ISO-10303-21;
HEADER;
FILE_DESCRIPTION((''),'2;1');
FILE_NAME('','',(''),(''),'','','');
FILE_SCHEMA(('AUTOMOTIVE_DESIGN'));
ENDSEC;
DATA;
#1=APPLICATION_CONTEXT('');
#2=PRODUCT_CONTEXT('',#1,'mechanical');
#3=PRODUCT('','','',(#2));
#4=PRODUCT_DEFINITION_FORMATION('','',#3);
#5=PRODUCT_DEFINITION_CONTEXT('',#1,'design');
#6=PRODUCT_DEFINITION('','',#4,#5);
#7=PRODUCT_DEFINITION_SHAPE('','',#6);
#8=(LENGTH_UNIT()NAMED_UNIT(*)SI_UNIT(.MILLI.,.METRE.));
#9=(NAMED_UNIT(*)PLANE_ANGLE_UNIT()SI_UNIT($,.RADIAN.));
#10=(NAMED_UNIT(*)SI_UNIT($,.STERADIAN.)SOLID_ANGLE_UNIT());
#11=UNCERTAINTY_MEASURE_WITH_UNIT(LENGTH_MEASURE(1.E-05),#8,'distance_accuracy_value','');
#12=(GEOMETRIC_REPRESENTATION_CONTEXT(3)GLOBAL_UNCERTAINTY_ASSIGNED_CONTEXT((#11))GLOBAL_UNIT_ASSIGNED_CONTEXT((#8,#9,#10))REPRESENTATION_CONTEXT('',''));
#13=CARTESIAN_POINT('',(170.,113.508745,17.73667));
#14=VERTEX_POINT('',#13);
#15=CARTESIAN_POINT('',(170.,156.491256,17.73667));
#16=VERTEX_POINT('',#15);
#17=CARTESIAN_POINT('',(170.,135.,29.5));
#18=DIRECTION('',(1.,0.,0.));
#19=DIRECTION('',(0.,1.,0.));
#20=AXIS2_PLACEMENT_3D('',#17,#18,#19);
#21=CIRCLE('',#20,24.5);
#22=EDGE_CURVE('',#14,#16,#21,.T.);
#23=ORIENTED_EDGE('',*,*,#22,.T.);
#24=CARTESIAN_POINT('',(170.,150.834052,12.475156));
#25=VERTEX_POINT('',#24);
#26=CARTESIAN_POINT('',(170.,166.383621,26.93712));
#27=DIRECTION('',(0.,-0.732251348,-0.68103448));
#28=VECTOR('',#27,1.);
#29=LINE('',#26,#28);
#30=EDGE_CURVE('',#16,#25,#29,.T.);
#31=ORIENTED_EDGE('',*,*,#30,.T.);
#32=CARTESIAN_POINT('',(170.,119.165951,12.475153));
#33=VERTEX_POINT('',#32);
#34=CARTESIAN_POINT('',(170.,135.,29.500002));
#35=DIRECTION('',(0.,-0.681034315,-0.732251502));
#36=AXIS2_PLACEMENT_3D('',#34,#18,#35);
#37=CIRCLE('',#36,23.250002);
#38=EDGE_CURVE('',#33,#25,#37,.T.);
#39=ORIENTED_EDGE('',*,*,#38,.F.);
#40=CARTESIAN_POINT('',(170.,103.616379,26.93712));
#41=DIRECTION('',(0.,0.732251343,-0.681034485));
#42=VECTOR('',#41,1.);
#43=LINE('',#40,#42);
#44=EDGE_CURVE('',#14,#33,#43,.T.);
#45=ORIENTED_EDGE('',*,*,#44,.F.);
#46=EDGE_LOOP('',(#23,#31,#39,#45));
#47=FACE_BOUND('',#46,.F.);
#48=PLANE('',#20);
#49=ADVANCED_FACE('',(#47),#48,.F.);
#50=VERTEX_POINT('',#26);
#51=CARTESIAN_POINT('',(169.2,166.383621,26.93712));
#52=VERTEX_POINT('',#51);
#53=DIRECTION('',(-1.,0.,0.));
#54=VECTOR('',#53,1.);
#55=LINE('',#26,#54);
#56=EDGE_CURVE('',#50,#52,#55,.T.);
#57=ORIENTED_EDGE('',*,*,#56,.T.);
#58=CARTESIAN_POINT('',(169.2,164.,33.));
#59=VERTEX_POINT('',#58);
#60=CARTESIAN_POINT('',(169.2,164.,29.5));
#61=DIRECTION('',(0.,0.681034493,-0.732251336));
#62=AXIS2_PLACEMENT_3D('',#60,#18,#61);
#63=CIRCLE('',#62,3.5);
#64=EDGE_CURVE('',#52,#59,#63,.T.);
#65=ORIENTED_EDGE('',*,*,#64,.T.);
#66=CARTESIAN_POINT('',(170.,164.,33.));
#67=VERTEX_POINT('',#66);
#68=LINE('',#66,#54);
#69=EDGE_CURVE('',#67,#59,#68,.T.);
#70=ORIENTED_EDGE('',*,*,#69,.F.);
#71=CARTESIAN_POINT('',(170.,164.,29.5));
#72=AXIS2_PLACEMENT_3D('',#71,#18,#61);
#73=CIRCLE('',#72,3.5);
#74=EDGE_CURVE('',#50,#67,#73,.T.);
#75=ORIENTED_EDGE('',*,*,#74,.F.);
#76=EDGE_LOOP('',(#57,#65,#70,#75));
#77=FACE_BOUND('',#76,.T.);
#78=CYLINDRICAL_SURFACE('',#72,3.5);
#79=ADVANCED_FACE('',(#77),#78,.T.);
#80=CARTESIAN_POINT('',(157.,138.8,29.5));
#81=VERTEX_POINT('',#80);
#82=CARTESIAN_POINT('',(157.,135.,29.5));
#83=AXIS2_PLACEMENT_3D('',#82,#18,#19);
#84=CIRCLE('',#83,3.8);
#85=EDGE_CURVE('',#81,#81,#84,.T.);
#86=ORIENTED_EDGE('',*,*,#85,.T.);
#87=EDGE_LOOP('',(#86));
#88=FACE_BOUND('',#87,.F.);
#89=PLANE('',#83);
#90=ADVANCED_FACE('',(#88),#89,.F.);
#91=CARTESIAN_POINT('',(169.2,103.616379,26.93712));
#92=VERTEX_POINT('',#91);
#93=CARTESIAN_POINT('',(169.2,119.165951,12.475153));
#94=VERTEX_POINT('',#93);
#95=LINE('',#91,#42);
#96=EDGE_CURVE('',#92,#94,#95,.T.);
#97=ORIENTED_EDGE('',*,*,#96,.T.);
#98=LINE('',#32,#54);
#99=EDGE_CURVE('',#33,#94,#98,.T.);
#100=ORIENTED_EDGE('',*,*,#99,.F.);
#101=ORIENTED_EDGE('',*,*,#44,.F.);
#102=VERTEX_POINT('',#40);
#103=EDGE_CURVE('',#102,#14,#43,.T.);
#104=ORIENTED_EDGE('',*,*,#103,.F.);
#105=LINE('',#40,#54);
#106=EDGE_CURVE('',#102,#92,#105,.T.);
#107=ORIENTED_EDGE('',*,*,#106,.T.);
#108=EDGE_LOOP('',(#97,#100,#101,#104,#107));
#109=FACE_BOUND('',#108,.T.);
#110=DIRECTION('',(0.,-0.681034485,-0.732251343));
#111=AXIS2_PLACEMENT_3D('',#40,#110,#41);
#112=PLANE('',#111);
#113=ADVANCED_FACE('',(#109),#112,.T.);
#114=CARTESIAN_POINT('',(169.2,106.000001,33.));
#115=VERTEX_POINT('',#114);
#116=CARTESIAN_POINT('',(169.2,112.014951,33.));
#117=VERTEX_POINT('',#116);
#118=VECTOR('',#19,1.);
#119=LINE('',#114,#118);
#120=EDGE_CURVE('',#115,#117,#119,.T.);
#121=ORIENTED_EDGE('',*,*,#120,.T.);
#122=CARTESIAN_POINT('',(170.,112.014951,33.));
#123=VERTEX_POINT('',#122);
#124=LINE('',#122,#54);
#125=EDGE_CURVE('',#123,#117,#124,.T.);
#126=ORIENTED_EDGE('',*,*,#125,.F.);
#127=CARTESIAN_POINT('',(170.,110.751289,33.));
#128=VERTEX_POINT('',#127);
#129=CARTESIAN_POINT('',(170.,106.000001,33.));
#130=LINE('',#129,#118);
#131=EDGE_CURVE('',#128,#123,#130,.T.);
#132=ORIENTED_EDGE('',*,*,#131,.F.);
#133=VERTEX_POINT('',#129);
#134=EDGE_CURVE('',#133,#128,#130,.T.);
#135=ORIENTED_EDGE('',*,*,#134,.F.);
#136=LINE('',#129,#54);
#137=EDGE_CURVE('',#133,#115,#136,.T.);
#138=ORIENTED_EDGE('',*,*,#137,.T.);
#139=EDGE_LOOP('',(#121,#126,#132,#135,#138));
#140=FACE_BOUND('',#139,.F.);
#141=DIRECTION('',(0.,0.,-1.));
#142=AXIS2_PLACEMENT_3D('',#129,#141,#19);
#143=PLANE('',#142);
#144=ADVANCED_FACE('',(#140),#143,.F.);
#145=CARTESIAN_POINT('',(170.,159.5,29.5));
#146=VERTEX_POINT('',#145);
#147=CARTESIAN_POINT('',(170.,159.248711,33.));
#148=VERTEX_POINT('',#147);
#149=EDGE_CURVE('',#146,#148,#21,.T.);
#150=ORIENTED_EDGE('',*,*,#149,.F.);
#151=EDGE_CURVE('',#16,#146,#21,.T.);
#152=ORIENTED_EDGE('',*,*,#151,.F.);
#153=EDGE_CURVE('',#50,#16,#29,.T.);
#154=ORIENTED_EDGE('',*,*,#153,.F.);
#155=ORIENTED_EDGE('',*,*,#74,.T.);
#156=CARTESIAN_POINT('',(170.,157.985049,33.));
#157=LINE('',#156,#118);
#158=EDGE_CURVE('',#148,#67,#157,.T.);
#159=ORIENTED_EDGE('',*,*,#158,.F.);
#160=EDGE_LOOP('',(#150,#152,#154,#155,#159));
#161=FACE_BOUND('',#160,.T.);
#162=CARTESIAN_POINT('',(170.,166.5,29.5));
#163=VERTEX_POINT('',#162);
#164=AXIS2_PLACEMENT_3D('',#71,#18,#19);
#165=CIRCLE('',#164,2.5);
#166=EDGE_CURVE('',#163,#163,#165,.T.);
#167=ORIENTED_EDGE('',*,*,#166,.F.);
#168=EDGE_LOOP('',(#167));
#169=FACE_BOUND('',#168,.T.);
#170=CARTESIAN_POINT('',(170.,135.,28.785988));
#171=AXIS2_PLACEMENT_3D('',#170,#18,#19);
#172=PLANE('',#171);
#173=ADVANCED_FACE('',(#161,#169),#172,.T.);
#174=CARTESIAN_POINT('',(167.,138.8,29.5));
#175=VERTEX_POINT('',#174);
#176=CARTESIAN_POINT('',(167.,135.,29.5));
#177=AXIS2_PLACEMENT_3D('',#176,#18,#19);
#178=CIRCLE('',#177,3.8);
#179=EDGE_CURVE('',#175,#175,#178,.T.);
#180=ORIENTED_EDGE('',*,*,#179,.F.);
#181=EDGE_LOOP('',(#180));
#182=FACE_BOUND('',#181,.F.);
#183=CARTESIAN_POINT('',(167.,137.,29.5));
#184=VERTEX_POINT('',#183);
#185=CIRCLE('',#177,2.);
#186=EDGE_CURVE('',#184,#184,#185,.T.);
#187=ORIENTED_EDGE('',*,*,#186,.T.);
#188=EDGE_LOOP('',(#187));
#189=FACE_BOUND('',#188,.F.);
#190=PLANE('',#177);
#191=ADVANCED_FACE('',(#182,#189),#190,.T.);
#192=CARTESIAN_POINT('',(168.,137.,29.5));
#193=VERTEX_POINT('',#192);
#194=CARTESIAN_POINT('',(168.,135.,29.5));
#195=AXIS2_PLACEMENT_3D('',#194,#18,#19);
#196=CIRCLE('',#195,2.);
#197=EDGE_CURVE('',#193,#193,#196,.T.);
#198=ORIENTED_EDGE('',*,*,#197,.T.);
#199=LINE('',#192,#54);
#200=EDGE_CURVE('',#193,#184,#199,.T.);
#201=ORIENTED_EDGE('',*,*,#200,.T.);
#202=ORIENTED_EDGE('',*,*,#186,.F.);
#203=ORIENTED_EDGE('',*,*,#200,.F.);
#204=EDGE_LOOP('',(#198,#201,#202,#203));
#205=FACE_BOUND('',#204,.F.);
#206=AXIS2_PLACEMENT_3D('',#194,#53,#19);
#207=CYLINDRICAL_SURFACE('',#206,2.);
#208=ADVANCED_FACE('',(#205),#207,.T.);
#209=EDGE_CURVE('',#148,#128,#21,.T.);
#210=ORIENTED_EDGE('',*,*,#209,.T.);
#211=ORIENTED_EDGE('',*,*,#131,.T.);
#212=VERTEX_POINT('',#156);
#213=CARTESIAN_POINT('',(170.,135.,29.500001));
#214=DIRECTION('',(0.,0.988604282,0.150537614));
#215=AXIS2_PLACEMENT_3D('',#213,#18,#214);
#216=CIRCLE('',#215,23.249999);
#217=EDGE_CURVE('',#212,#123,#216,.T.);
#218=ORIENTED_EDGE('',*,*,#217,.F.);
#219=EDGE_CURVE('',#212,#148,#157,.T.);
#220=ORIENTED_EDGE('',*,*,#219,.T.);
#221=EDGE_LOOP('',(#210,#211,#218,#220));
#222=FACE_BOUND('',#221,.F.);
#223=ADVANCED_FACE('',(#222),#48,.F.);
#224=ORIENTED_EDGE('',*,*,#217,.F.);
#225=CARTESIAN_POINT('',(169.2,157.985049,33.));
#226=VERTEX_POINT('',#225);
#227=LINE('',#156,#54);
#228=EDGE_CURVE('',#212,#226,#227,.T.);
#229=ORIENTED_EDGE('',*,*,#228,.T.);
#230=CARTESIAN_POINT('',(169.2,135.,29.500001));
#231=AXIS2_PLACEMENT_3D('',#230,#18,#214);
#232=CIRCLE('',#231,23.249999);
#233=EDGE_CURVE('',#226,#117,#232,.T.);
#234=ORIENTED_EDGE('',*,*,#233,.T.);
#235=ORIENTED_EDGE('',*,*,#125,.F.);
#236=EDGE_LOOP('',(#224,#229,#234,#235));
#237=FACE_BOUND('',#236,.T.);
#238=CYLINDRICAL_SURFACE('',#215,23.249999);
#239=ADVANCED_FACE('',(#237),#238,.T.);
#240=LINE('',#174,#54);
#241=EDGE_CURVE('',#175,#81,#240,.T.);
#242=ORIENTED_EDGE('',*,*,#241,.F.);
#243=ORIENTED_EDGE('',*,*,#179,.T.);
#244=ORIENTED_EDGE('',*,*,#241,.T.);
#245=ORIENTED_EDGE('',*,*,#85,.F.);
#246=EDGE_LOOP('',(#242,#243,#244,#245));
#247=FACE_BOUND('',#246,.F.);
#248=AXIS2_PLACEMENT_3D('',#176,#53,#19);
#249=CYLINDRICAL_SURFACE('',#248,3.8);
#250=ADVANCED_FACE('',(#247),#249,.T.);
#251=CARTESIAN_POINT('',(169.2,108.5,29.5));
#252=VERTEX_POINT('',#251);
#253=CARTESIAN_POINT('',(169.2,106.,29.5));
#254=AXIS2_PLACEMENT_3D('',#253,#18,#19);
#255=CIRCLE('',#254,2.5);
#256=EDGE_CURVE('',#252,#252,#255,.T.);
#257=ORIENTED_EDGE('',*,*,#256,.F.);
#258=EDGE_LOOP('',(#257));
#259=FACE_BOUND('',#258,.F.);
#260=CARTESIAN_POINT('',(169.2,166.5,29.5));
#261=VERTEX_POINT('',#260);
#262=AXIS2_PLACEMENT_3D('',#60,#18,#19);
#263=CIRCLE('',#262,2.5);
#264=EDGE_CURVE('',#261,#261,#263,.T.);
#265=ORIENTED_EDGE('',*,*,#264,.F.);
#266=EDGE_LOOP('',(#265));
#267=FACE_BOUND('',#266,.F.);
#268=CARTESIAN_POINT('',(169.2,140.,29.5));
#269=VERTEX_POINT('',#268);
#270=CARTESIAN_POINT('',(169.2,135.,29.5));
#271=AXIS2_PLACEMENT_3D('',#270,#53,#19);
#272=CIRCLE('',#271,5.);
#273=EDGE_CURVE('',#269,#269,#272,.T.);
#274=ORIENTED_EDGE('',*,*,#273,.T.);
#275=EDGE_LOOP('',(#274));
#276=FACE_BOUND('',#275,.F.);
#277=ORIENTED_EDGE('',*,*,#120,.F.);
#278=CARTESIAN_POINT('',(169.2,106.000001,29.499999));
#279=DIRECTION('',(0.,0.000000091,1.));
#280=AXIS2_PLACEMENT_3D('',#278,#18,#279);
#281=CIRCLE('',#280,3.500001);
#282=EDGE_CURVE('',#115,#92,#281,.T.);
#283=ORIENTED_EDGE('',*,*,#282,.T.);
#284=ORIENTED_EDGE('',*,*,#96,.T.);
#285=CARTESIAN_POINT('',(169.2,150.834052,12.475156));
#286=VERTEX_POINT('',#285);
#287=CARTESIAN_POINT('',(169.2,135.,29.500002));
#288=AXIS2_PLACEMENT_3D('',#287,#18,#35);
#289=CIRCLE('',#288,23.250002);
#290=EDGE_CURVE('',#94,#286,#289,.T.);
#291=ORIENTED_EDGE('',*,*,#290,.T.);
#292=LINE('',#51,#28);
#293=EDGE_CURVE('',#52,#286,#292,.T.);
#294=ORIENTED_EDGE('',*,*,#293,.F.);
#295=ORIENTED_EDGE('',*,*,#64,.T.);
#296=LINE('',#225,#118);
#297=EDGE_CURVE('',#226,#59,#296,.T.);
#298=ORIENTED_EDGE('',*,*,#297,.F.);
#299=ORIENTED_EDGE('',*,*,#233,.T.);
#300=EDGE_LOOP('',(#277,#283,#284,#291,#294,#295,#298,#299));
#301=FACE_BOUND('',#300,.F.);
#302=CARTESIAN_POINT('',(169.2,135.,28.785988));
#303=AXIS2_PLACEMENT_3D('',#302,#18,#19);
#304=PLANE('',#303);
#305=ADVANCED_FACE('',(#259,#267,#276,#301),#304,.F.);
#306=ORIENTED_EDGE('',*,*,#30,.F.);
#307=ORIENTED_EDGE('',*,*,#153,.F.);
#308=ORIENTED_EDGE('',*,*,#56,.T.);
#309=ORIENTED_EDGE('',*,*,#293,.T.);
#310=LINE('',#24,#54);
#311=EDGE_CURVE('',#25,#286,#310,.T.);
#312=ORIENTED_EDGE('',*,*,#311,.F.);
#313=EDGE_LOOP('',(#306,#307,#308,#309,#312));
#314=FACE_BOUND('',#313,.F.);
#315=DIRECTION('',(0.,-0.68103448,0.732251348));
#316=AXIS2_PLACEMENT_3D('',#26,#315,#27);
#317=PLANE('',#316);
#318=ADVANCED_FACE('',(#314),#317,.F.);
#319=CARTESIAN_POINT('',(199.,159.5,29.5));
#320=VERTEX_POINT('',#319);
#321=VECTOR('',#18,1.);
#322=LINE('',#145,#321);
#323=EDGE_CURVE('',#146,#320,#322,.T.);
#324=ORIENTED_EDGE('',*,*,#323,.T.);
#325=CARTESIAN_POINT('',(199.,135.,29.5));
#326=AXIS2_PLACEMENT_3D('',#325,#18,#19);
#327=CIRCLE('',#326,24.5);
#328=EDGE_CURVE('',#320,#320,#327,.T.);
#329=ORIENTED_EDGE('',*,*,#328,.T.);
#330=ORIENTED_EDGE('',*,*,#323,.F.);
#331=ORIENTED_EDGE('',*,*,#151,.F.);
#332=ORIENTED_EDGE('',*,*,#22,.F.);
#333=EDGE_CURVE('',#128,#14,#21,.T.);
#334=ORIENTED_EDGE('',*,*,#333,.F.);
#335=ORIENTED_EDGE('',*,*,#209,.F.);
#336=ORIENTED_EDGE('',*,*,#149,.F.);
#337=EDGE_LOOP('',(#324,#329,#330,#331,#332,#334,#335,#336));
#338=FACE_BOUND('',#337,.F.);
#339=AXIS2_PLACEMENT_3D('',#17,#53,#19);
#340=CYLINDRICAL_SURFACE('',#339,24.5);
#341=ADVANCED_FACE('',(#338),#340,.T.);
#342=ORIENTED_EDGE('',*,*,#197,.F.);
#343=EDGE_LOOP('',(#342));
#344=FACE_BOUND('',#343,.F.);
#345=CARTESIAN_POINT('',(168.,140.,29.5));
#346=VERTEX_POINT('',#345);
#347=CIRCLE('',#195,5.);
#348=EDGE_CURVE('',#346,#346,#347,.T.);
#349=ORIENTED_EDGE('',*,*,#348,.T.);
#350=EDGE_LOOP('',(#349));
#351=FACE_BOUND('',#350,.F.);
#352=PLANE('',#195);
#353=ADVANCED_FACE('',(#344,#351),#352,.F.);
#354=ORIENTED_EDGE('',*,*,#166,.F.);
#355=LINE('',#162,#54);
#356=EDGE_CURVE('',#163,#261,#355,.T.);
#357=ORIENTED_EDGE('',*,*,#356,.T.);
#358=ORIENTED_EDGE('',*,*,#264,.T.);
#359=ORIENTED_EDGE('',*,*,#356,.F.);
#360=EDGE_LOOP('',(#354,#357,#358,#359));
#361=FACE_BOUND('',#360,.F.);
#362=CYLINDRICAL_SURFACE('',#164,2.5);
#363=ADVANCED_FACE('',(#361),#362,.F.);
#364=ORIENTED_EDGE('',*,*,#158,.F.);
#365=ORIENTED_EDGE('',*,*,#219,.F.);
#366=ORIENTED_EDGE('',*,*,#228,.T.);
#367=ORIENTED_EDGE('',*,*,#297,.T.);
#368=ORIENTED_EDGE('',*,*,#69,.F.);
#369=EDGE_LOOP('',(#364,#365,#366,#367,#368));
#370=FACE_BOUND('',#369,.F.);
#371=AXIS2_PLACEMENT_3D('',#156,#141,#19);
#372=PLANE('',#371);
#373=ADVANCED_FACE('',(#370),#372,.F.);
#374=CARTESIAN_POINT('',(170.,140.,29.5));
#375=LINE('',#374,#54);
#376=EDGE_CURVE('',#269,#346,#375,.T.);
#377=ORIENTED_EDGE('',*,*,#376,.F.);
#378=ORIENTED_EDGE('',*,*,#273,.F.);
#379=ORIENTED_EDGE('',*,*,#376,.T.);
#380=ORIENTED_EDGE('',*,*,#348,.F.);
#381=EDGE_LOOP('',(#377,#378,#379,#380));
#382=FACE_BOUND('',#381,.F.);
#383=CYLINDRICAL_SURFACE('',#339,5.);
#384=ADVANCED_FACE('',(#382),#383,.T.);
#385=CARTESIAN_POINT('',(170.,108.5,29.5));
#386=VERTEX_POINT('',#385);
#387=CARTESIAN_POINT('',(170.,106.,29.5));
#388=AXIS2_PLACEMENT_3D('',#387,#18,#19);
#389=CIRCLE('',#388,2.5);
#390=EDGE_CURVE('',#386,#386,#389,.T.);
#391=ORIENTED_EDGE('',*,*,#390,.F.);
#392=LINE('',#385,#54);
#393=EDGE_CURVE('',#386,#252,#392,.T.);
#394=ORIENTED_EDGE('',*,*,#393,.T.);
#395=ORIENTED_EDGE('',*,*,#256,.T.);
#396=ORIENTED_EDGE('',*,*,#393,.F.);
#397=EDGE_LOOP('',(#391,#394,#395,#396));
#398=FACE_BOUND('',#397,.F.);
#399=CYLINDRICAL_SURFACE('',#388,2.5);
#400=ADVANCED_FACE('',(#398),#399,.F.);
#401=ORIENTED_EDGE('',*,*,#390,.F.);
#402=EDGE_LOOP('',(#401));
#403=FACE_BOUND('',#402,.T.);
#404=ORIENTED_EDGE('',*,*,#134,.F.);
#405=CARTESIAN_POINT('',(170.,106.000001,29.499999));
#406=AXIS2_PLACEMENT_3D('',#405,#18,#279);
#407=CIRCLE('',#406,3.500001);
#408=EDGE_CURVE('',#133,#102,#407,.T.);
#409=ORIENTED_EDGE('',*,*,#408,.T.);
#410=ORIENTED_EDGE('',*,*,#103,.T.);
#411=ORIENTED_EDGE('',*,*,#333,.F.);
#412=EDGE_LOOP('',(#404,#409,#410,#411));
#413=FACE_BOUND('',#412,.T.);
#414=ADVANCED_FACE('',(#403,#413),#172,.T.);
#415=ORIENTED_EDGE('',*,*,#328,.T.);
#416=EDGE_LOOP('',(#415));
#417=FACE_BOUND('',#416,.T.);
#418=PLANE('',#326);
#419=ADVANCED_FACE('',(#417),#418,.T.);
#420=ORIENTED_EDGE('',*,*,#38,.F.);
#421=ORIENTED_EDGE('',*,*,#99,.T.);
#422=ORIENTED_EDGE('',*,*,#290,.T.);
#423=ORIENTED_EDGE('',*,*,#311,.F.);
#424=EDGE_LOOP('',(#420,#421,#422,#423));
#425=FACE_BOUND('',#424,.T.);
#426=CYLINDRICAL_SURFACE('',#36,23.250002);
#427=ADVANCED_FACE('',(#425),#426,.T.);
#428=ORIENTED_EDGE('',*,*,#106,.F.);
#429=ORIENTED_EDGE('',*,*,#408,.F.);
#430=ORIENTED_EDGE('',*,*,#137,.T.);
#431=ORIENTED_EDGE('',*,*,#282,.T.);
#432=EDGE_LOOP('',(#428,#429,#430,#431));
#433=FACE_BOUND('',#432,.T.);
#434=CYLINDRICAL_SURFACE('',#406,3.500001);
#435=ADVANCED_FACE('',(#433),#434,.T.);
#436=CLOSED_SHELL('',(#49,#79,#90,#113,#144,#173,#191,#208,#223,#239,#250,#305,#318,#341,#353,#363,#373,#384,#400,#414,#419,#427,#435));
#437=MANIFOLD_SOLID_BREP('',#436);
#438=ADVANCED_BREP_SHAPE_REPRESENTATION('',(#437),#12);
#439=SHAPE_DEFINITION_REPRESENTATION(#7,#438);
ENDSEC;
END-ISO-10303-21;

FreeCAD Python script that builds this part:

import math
import FreeCAD as App
import Part
import Sketcher

V = App.Vector

doc = App.newDocument("Part")
body = doc.addObject("PartDesign::Body", "Body")

sketch1 = body.newObject("Sketcher::SketchObject", "Sketch")
sketch1.AttachmentSupport = (doc.getObject("YZ_Plane"), [""])
sketch1.MapMode = "FlatFace"
sketch1.addGeometry(Part.Circle(V(0, 0, 0), V(0, 0, 1), 24.5), False)
sketch1.addConstraint([
    Sketcher.Constraint("Coincident", 0, 3, -1, 1),
    Sketcher.Constraint("Diameter", 0, 49.0),
])
pad1 = body.newObject("PartDesign::Pad", "Pad")
pad1.Profile = sketch1
pad1.Length = 29

sketch2 = body.newObject("Sketcher::SketchObject", "Sketch001")
sketch2.AttachmentSupport = (doc.getObject("XY_Plane"), [""])
sketch2.MapMode = "FlatFace"
sketch2.addGeometry([
    Part.LineSegment(V(-2, 5, 0), V(-2, 2, 0)),
    Part.LineSegment(V(-2, 2, 0), V(-3, 2, 0)),
    Part.LineSegment(V(-3, 2, 0), V(-3, 3.8, 0)),
    Part.LineSegment(V(-3, 3.8, 0), V(-13, 3.8, 0)),
    Part.LineSegment(V(-13, 3.8, 0), V(-13, 0, 0)),
    Part.LineSegment(V(-13, 0, 0), V(0, 0, 0)),
    Part.LineSegment(V(0, 0, 0), V(0, 5, 0)),
    Part.LineSegment(V(0, 5, 0), V(-2, 5, 0)),
], False)
sketch2.addConstraint([
    Sketcher.Constraint("Coincident", 0, 2, 1, 1),
    Sketcher.Constraint("Coincident", 1, 2, 2, 1),
    Sketcher.Constraint("Coincident", 2, 2, 3, 1),
    Sketcher.Constraint("Coincident", 3, 2, 4, 1),
    Sketcher.Constraint("Coincident", 4, 2, 5, 1),
    Sketcher.Constraint("Coincident", 5, 2, 6, 1),
    Sketcher.Constraint("Coincident", 6, 2, 7, 1),
    Sketcher.Constraint("Coincident", 7, 2, 0, 1),
    Sketcher.Constraint("Vertical", 0),
    Sketcher.Constraint("Horizontal", 1),
    Sketcher.Constraint("Vertical", 2),
    Sketcher.Constraint("Horizontal", 3),
    Sketcher.Constraint("Vertical", 4),
    Sketcher.Constraint("Horizontal", 5),
    Sketcher.Constraint("Vertical", 6),
    Sketcher.Constraint("Horizontal", 7),
    Sketcher.Constraint("Coincident", 5, 2, -1, 1),
    Sketcher.Constraint("DistanceX", 1, 2, 1, 1, 1.0),
    Sketcher.Constraint("DistanceX", 3, 2, 3, 1, 10.0),
    Sketcher.Constraint("DistanceX", 5, 1, 5, 2, 13.0),
    Sketcher.Constraint("DistanceY", 0, 2, 0, 1, 3.0),
    Sketcher.Constraint("DistanceY", 6, 1, 6, 2, 5.0),
    Sketcher.Constraint("DistanceY", 2, 1, 2, 2, 1.8),
])
revolution = body.newObject("PartDesign::Revolution", "Revolution")
revolution.Profile = sketch2
revolution.ReferenceAxis = (sketch2, ["H_Axis"])
revolution.Angle = 360

sketch3 = body.newObject("Sketcher::SketchObject", "Sketch002")
sketch3.AttachmentSupport = (doc.getObject("YZ_Plane"), [""])
sketch3.MapMode = "FlatFace"
sketch3.addGeometry([
    Part.ArcOfCircle(Part.Circle(V(-28.999999, -0.000001, 0), V(0, 0, 1), 3.500001), math.radians(89.999995), math.radians(227.075451)),
    Part.LineSegment(V(-31.383621, -2.56288, 0), V(-15.834049, -17.024847, 0)),
    Part.ArcOfCircle(Part.Circle(V(0, 0.000002, 0), V(0, 0, 1), 23.250002), math.radians(-132.924521), math.radians(-47.075468)),
    Part.LineSegment(V(15.834052, -17.024844, 0), V(31.383621, -2.56288, 0)),
    Part.ArcOfCircle(Part.Circle(V(29, 0, 0), V(0, 0, 1), 3.5), math.radians(-47.075465), math.radians(90.000002)),
    Part.LineSegment(V(29, 3.5, 0), V(22.985049, 3.5, 0)),
    Part.ArcOfCircle(Part.Circle(V(0, 0.000001, 0), V(0, 0, 1), 23.249999), math.radians(8.658083), math.radians(171.341917)),
    Part.LineSegment(V(-22.985049, 3.5, 0), V(-28.999999, 3.5, 0)),
    Part.Circle(V(-29, 0, 0), V(0, 0, 1), 2.5),
    Part.Circle(V(29, 0, 0), V(0, 0, 1), 2.5),
], False)
sketch3.addConstraint([
    Sketcher.Constraint("Tangent", 0, 2, 1, 1),
    Sketcher.Constraint("Tangent", 1, 2, 2, 1),
    Sketcher.Constraint("Tangent", 2, 2, 3, 1),
    Sketcher.Constraint("Tangent", 3, 2, 4, 1),
    Sketcher.Constraint("Tangent", 4, 2, 5, 1),
    Sketcher.Constraint("Coincident", 5, 2, 6, 1),
    Sketcher.Constraint("Coincident", 6, 2, 7, 1),
    Sketcher.Constraint("Tangent", 7, 2, 0, 1),
    Sketcher.Constraint("Horizontal", 5),
    Sketcher.Constraint("Horizontal", 7),
    Sketcher.Constraint("Coincident", 2, 3, -1, 1),
    Sketcher.Constraint("Coincident", 6, 3, -1, 1),
    Sketcher.Constraint("Coincident", 8, 3, 0, 3),
    Sketcher.Constraint("Coincident", 9, 3, 4, 3),
    Sketcher.Constraint("Equal", 0, 4),
    Sketcher.Constraint("Equal", 8, 9),
    Sketcher.Constraint("Symmetric", 0, 3, 4, 3, -1, 1),
    Sketcher.Constraint("PointOnObject", 0, 3, -1),
    Sketcher.Constraint("Diameter", 8, 5.0),
    Sketcher.Constraint("Radius", 0, 3.500001),
    Sketcher.Constraint("Radius", 2, 23.250002),
    Sketcher.Constraint("Radius", 6, 23.249999),
    Sketcher.Constraint("DistanceX", 0, 3, -1, 1, 28.999999),
])
pad2 = body.newObject("PartDesign::Pad", "Pad001")
pad2.Profile = sketch3
pad2.Length = 0.8
pad2.Reversed = True
body2 = doc.addObject("PartDesign::Body", "Body001")
doc.recompute()

body.Placement = App.Placement(V(170, 135, 29.5), App.Rotation(V(0, 0, 1), 0))
boolean = body2.newObject("PartDesign::Boolean", "Boolean")
boolean.Type = "Fuse"
boolean.addObjects([body])

doc.recompute()
